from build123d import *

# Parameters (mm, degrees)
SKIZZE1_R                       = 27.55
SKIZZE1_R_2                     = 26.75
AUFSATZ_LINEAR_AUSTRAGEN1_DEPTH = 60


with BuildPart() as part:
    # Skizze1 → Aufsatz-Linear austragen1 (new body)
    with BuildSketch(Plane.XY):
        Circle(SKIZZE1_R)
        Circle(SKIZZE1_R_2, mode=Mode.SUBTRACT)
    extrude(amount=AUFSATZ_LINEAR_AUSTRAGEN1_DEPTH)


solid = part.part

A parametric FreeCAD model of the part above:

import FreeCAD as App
import Part
import Sketcher
Q = App.Units.Quantity

doc = App.newDocument("Part")
body = doc.addObject("PartDesign::Body", "Body")

sketch1 = body.newObject("Sketcher::SketchObject", "Sketch")
sketch1.AttachmentSupport = (doc.getObject("XY_Plane"), [""])
sketch1.MapMode = "FlatFace"
sketch1.addGeometry(Part.Circle(App.Vector(0, 0, 0), App.Vector(0, 0, 1), 28), False)
sketch1.addGeometry(Part.Circle(App.Vector(0, 0, 0), App.Vector(0, 0, 1), 27), False)
sketch1.addConstraint(Sketcher.Constraint("Coincident", 0, 3, -1, 1))
sketch1.addConstraint(Sketcher.Constraint("Coincident", 1, 3, -1, 1))
sketch1.addConstraint(Sketcher.Constraint("Diameter", 0, Q("55.1 mm")))
sketch1.addConstraint(Sketcher.Constraint("Diameter", 1, Q("53.5 mm")))
pad1 = body.newObject("PartDesign::Pad", "Pad")
pad1.Profile = sketch1
pad1.Length = 60

doc.recompute()
